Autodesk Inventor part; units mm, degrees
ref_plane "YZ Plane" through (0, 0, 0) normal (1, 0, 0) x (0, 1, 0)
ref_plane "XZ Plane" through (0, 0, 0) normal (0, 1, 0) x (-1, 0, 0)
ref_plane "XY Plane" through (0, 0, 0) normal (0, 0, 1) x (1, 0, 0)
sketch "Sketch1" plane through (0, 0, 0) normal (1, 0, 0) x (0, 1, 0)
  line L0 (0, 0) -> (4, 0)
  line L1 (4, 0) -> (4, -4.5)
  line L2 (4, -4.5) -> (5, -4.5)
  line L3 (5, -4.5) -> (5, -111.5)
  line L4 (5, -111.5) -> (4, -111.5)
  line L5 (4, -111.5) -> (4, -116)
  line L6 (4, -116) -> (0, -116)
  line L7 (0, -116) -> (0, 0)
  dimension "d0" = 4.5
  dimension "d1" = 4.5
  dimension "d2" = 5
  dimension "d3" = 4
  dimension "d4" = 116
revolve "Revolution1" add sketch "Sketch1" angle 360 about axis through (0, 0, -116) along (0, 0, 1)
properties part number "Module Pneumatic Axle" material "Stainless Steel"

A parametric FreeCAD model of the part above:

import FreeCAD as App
import Part
import Sketcher


def add_polygon(sketch, points):
    """Adds a closed chain of lines whose ends are joined by coincident constraints."""
    first, n = sketch.GeometryCount, len(points)
    for a, b in zip(points, points[1:] + points[:1]):
        sketch.addGeometry(Part.LineSegment(App.Vector(*a, 0), App.Vector(*b, 0)), False)
    for i in range(n):
        sketch.addConstraint(Sketcher.Constraint("Coincident", first + i, 2, first + (i + 1) % n, 1))

doc = App.newDocument("Part")
body = doc.addObject("PartDesign::Body", "Body")

sketch1 = doc.addObject("Sketcher::SketchObject", "Sketch")
body.addObject(sketch1)
sketch1.AttachmentSupport = (doc.YZ_Plane, [""])
sketch1.MapMode = "FlatFace"
add_polygon(sketch1, [(4, 0), (0, 0), (0, -116), (4, -116), (4, -111.5), (5, -111.5), (5, -4.5), (4, -4.5)])
sketch1.addConstraint([
    Sketcher.Constraint("Horizontal", 0),
    Sketcher.Constraint("Vertical", 1),
    Sketcher.Constraint("Horizontal", 2),
    Sketcher.Constraint("Vertical", 3),
    Sketcher.Constraint("Horizontal", 4),
    Sketcher.Constraint("Vertical", 5),
    Sketcher.Constraint("Horizontal", 6),
    Sketcher.Constraint("Vertical", 7),
    Sketcher.Constraint("Coincident", 0, 2, -1, 1),
    Sketcher.Constraint("Vertical", 3, 2, 6, 2),
    Sketcher.Constraint("Equal", 3, 7),
    Sketcher.Constraint("DistanceX", 0, 2, 0, 1, 4.0),
    Sketcher.Constraint("DistanceY", 1, 2, 1, 1, 116.0),
    Sketcher.Constraint("DistanceY", 3, 1, 3, 2, 4.5),
    Sketcher.Constraint("DistanceX", -1, 1, 4, 2, 5.0),
])
revolution = doc.addObject("PartDesign::Revolution", "Revolution")
body.addObject(revolution)
revolution.Profile = sketch1
revolution.ReferenceAxis = (sketch1, ["V_Axis"])
revolution.Angle = 360

doc.recompute()
